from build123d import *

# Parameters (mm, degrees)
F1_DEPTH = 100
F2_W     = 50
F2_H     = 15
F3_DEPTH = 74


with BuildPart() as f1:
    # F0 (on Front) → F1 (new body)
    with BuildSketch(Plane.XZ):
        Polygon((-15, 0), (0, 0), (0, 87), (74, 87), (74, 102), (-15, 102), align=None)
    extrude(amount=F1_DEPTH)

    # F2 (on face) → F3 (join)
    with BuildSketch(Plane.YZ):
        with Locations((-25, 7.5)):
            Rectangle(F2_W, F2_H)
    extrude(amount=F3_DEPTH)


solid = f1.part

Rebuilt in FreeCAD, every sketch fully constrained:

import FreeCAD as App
import Part
import Sketcher
Q = App.Units.Quantity

doc = App.newDocument("Part")
body = doc.addObject("PartDesign::Body", "Body")

# Sketch on XZ plane
sketch1 = body.newObject("Sketcher::SketchObject", "Sketch")
sketch1.AttachmentSupport = (doc.getObject("XZ_Plane"), [""])
sketch1.MapMode = "FlatFace"
sketch1.addGeometry([
    Part.LineSegment(App.Vector(-15, 0, 0), App.Vector(0, 0, 0)),  # 0
    Part.LineSegment(App.Vector(0, 0, 0), App.Vector(0, 87, 0)),  # 1
    Part.LineSegment(App.Vector(0, 87, 0), App.Vector(74, 87, 0)),  # 2
    Part.LineSegment(App.Vector(74, 87, 0), App.Vector(74, 102, 0)),  # 3
    Part.LineSegment(App.Vector(74, 102, 0), App.Vector(-15, 102, 0)),  # 4
    Part.LineSegment(App.Vector(-15, 102, 0), App.Vector(-15, 0, 0)),  # 5
], False)
sketch1.addConstraint([
    Sketcher.Constraint("Coincident", 0, 2, 1, 1),
    Sketcher.Constraint("Coincident", 1, 2, 2, 1),
    Sketcher.Constraint("Coincident", 2, 2, 3, 1),
    Sketcher.Constraint("Coincident", 3, 2, 4, 1),
    Sketcher.Constraint("Coincident", 4, 2, 5, 1),
    Sketcher.Constraint("Coincident", 5, 2, 0, 1),
    Sketcher.Constraint("Horizontal", 0),
    Sketcher.Constraint("Vertical", 1),
    Sketcher.Constraint("Horizontal", 2),
    Sketcher.Constraint("Vertical", 3),
    Sketcher.Constraint("Horizontal", 4),
    Sketcher.Constraint("Vertical", 5),
    Sketcher.Constraint("Coincident", 0, 2, -1, 1),
    Sketcher.Constraint("Equal", 0, 3),
    Sketcher.Constraint("DistanceX", 0, 1, 0, 2, Q("15 mm")),
    Sketcher.Constraint("DistanceX", 2, 1, 2, 2, Q("74 mm")),
    Sketcher.Constraint("DistanceY", 1, 1, 1, 2, Q("87 mm")),
])
pad1 = body.newObject("PartDesign::Pad", "Pad")
pad1.Profile = sketch1
pad1.Length = 100

# Sketch on YZ plane
sketch2 = body.newObject("Sketcher::SketchObject", "Sketch001")
sketch2.AttachmentSupport = (doc.getObject("YZ_Plane"), [""])
sketch2.MapMode = "FlatFace"
sketch2.addGeometry([
    Part.LineSegment(App.Vector(-50, 15, 0), App.Vector(-50, 0, 0)),
    Part.LineSegment(App.Vector(-50, 0, 0), App.Vector(0, 0, 0)),
    Part.LineSegment(App.Vector(0, 0, 0), App.Vector(0, 15, 0)),
    Part.LineSegment(App.Vector(0, 15, 0), App.Vector(-50, 15, 0)),
], False)
sketch2.addConstraint([
    Sketcher.Constraint("Coincident", 0, 2, 1, 1),
    Sketcher.Constraint("Coincident", 1, 2, 2, 1),
    Sketcher.Constraint("Coincident", 2, 2, 3, 1),
    Sketcher.Constraint("Coincident", 3, 2, 0, 1),
    Sketcher.Constraint("Vertical", 0),
    Sketcher.Constraint("Horizontal", 1),
    Sketcher.Constraint("Vertical", 2),
    Sketcher.Constraint("Horizontal", 3),
    Sketcher.Constraint("Coincident", 1, 2, -1, 1),
    Sketcher.Constraint("DistanceX", 1, 1, 1, 2, Q("50 mm")),
    Sketcher.Constraint("DistanceY", 0, 2, 0, 1, Q("15 mm")),
])
pad2 = body.newObject("PartDesign::Pad", "Pad001")
pad2.Profile = sketch2
pad2.Length = 74

doc.recompute()
